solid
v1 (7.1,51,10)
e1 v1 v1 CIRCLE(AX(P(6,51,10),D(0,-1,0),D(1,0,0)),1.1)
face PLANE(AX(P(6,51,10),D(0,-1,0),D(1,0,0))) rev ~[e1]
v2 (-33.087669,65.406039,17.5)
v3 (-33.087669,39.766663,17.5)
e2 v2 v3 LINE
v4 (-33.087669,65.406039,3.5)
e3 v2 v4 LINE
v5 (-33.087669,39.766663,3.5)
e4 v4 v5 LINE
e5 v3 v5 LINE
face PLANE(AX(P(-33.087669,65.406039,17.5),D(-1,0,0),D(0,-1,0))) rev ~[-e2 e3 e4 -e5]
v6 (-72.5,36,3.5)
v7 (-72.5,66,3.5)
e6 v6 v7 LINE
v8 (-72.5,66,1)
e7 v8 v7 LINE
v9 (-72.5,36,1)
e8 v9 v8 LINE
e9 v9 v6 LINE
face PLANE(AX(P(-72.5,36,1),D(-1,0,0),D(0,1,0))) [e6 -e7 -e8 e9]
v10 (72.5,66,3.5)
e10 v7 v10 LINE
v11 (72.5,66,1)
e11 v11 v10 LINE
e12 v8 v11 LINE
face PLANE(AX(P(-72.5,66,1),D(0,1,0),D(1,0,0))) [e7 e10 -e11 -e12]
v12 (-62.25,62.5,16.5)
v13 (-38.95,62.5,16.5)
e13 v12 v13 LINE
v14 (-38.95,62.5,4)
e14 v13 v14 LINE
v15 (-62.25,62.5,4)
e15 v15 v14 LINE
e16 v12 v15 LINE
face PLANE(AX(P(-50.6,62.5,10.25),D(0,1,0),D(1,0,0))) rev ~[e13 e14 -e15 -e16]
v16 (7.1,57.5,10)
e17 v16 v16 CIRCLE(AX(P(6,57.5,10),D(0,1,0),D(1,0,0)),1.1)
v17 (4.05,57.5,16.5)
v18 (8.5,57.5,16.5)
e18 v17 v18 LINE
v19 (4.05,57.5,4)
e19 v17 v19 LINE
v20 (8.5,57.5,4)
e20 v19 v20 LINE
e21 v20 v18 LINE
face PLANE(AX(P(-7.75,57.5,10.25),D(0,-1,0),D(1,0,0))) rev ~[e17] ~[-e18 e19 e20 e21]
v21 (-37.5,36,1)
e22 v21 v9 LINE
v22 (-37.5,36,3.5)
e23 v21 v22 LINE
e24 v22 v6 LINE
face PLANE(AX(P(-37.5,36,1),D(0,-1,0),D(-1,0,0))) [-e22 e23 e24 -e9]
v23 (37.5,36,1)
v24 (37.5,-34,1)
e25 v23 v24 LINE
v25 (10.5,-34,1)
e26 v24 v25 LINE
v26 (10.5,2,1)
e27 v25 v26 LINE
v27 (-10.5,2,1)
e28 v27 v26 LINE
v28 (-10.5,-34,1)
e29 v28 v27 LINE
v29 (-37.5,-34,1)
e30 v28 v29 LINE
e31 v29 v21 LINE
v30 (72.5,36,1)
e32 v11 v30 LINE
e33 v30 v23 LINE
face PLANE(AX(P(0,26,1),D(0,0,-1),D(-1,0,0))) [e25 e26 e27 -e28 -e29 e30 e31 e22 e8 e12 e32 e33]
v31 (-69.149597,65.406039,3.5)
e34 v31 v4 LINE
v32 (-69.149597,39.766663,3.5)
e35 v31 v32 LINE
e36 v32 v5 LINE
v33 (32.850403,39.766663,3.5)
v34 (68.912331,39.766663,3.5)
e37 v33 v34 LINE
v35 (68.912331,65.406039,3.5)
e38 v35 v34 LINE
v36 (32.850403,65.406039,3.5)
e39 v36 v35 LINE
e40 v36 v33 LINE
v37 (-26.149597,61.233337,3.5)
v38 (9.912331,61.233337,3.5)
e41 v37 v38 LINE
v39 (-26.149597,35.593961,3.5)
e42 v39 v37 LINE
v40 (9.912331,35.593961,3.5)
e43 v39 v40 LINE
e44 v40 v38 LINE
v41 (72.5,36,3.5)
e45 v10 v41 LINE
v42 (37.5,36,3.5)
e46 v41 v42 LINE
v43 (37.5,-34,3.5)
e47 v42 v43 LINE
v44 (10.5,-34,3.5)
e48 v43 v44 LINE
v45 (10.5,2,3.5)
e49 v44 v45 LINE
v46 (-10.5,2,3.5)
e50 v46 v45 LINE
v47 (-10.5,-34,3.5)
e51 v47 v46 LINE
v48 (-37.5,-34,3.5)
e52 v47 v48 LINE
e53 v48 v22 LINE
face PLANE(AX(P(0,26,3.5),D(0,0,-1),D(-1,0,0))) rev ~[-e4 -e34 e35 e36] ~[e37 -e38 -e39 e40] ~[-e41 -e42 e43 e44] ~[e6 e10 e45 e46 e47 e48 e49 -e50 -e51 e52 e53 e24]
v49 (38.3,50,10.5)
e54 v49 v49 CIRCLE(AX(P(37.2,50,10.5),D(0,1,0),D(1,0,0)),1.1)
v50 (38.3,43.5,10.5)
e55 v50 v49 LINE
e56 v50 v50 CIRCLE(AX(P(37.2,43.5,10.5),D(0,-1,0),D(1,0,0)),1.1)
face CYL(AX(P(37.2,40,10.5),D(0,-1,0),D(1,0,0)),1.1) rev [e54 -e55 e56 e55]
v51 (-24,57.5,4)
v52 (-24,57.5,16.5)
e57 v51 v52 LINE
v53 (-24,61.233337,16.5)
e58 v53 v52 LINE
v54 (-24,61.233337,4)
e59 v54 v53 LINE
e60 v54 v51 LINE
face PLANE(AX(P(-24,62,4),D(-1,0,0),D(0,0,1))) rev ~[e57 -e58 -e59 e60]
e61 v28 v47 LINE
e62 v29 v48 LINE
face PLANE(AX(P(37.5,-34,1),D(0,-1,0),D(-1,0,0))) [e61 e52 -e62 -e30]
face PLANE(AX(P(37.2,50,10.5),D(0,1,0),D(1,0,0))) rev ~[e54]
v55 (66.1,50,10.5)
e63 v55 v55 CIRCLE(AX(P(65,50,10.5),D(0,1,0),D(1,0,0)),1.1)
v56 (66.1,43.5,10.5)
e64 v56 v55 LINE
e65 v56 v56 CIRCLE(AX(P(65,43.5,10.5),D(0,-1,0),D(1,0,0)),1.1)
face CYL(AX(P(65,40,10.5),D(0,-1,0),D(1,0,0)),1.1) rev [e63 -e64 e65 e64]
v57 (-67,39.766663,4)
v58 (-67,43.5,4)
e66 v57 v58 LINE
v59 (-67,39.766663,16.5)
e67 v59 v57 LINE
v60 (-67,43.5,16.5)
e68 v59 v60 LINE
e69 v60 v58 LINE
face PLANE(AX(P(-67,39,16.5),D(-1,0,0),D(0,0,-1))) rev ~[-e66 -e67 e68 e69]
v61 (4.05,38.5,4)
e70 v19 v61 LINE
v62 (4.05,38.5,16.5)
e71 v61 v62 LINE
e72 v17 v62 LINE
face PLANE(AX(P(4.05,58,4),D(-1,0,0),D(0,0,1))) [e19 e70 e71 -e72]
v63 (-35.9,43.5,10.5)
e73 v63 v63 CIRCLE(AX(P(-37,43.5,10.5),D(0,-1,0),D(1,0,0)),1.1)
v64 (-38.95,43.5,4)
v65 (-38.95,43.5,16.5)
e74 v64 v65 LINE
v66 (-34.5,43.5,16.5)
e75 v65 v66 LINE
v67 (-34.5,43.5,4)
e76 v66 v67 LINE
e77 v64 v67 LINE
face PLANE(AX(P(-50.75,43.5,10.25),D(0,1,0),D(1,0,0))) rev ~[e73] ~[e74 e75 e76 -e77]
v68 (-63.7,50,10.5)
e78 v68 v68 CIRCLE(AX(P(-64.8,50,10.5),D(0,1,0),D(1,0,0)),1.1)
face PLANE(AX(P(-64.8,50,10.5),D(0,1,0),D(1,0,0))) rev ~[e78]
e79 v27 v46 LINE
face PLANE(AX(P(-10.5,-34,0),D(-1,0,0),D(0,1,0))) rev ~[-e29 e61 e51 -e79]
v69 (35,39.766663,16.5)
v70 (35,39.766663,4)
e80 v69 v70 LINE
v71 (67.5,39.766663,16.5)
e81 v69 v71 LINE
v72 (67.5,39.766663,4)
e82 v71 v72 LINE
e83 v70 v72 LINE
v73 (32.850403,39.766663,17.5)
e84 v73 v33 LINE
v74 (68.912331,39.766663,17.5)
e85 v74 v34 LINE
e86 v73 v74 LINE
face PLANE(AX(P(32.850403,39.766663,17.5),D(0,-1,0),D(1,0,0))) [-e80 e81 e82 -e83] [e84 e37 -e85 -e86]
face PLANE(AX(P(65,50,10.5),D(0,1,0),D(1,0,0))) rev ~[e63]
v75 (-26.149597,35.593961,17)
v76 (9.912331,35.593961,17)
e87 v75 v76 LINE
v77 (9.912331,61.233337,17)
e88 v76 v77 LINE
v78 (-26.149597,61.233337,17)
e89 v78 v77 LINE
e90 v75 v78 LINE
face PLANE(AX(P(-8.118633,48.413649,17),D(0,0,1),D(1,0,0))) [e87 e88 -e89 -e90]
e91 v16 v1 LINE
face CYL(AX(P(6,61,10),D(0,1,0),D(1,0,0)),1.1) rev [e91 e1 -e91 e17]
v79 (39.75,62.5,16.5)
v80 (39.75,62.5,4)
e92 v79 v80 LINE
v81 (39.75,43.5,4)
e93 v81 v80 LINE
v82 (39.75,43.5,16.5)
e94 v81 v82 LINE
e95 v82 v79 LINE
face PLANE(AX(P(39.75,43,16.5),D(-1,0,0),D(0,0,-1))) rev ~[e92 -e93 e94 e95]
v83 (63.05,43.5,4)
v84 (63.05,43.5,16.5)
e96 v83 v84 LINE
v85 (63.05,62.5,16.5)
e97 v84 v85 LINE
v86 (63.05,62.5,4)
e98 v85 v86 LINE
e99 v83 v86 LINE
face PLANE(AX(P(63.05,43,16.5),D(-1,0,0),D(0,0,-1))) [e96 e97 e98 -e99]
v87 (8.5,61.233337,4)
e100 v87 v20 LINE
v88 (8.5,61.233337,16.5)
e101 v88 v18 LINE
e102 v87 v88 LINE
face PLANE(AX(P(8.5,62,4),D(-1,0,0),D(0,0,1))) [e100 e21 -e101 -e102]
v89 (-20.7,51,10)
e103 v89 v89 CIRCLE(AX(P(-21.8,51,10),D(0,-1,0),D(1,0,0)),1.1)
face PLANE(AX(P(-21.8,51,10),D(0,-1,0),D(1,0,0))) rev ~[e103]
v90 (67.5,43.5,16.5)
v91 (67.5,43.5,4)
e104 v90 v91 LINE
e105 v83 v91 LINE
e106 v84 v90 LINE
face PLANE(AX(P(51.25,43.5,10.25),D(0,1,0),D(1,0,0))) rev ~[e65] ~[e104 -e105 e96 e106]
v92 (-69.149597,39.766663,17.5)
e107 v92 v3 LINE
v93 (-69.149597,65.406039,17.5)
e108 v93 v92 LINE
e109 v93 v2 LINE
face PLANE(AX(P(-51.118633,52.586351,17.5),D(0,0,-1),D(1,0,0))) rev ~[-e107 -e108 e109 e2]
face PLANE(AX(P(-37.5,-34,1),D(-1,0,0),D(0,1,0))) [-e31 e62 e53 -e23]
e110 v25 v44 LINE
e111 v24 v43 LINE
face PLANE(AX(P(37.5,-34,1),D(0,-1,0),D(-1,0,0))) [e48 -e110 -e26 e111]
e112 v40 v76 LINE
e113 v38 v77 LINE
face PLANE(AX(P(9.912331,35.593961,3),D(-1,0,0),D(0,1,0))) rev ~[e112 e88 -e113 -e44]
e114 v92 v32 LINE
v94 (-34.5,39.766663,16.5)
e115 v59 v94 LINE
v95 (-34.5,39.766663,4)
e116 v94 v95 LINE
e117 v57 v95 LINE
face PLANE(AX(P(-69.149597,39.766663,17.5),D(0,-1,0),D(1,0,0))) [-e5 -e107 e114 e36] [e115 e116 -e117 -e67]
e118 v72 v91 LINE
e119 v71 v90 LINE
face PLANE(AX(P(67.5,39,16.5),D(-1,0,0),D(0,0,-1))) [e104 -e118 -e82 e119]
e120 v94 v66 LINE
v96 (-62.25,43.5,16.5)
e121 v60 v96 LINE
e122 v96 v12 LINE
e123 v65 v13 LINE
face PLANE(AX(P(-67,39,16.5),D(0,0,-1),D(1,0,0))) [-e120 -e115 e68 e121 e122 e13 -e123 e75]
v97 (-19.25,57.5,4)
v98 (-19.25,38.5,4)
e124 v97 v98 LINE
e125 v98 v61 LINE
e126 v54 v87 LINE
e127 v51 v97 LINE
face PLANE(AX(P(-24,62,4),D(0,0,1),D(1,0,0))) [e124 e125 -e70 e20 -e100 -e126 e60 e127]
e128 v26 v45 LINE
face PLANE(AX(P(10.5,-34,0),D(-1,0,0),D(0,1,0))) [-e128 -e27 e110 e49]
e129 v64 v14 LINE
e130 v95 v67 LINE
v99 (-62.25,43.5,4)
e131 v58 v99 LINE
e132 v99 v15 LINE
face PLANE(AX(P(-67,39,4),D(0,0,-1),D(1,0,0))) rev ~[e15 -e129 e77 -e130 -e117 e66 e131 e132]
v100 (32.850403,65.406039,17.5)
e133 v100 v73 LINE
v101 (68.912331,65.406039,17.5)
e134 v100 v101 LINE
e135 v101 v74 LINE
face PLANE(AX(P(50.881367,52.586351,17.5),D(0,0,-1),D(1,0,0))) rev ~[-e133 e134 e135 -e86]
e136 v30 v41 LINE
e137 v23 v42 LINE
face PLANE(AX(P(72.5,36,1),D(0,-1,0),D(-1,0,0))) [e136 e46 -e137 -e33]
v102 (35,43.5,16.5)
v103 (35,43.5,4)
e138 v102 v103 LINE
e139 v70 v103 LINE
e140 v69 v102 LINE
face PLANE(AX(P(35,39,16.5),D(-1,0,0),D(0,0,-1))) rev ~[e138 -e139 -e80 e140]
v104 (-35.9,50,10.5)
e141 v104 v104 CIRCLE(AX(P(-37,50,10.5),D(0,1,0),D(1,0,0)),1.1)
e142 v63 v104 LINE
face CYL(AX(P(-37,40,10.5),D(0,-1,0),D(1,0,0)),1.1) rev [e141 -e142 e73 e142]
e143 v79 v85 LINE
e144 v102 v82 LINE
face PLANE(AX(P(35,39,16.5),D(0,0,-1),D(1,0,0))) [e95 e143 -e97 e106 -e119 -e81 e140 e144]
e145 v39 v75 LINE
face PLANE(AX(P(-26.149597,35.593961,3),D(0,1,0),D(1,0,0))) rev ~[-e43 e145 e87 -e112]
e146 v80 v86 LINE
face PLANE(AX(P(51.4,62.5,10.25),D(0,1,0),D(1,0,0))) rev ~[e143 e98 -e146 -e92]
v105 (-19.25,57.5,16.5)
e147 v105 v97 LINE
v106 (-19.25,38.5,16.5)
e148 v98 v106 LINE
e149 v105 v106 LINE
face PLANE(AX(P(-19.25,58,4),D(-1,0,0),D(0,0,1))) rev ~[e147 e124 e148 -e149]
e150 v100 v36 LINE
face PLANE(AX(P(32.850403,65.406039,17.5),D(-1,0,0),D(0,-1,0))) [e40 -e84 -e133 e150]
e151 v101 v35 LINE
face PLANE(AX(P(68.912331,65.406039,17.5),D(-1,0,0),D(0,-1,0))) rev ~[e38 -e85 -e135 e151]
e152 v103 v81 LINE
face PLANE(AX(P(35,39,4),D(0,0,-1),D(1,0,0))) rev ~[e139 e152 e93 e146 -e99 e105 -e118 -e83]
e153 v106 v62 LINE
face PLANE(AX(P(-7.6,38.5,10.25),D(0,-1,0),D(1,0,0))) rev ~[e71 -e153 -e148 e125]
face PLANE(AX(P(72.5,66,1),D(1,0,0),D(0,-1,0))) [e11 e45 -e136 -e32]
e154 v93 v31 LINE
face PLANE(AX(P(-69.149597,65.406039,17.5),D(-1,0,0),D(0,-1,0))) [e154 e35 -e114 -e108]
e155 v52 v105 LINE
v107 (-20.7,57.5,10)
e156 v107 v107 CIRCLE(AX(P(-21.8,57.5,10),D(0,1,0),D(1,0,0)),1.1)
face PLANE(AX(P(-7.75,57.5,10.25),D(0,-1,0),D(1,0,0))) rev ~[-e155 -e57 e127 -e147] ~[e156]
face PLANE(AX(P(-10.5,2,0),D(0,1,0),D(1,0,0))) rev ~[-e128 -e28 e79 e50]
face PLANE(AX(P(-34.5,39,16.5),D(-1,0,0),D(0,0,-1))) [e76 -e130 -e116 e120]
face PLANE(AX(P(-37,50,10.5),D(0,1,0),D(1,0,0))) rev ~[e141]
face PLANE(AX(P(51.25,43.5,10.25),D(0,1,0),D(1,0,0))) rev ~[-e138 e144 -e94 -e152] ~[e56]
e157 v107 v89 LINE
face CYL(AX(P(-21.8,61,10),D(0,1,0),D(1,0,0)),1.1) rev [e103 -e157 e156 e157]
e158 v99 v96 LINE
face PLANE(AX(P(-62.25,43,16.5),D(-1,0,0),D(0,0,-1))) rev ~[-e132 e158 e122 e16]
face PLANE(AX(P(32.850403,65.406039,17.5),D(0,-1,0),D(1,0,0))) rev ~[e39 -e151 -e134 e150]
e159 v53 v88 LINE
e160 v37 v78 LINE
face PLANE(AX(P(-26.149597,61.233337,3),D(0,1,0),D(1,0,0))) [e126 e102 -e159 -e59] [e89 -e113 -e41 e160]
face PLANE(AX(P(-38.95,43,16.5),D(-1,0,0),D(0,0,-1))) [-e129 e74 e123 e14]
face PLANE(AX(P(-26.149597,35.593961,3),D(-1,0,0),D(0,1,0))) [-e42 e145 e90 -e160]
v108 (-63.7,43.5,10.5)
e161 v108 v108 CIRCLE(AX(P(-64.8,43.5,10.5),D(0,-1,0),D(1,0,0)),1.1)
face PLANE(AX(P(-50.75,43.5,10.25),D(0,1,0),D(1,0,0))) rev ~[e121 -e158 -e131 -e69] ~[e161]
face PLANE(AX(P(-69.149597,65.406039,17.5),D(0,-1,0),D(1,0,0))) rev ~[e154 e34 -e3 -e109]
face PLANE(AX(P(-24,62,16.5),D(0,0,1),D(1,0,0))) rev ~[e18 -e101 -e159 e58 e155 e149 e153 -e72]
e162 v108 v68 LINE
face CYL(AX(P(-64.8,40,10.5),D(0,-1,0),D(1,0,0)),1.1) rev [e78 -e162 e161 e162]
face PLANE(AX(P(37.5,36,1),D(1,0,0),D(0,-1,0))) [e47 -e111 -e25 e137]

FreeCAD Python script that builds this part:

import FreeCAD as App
import Part
import Sketcher
from FreeCAD import Vector
Q = App.Units.Quantity

doc = App.newDocument("Part")
params = doc.addObject("Spreadsheet::Sheet", "Params")
for row, (alias, value) in enumerate([
    ("sketch1_width", "21 mm"),
    ("sketch1_height", "36 mm"),
    ("pad1_length", "10 mm"),
    ("sketch2_diameter", "2.2 mm"),
    ("pad2_length", "10 mm"),
    ("sketch3_diameter", "2.2 mm"),
    ("pad3_length", "10 mm"),
    ("sketch4_width", "23.3 mm"),
    ("sketch4_height", "12.5 mm"),
    ("pad4_length", "19.5 mm"),
    ("sketch5_width", "32.5 mm"),
    ("sketch5_height", "12.5 mm"),
    ("pad5_length", "4.5 mm"),
    ("pad6_length", "14 mm"),
    ("sketch7_diameter", "2.2 mm"),
    ("pad7_length", "10 mm"),
    ("sketch8_diameter", "2.2 mm"),
    ("pad8_length", "10 mm"),
    ("sketch9_width", "23.3 mm"),
    ("sketch9_height", "12.5 mm"),
    ("pad9_length", "19.5 mm"),
    ("sketch10_width", "32.5 mm"),
    ("sketch10_height", "12.5 mm"),
    ("pad10_length", "4.5 mm"),
    ("pad11_length", "14 mm"),
    ("sketch12_diameter", "2.2 mm"),
    ("pad12_length", "10 mm"),
    ("sketch13_diameter", "2.2 mm"),
    ("pad13_length", "10 mm"),
    ("sketch14_width", "23.3 mm"),
    ("sketch14_height", "12.5 mm"),
    ("pad14_length", "19.5 mm"),
    ("sketch15_width", "32.5 mm"),
    ("sketch15_height", "12.5 mm"),
    ("pad15_length", "4.5 mm"),
    ("pad16_length", "14 mm"),
    ("sketch17_width", "35 mm"),
    ("sketch17_width2", "75 mm"),
    ("sketch17_height", "30 mm"),
    ("sketch17_height2", "70 mm"),
    ("pad17_length", "2.5 mm"),
], start=1):
    params.set(f"A{row}", alias)
    params.set(f"B{row}", "=" + value)
    params.setAlias(f"B{row}", alias)

body = doc.addObject("PartDesign::Body", "Body")

# Sketch on XY plane
sketch1 = body.newObject("Sketcher::SketchObject", "Sketch")
sketch1.AttachmentSupport = (doc.getObject("XY_Plane"), [""])
sketch1.MapMode = "FlatFace"
sketch1.addGeometry([
    Part.LineSegment(Vector(-10, 2, 0), Vector(-10, -34, 0)),
    Part.LineSegment(Vector(-10, -34, 0), Vector(10, -34, 0)),
    Part.LineSegment(Vector(10, -34, 0), Vector(10, 2, 0)),
    Part.LineSegment(Vector(10, 2, 0), Vector(-10, 2, 0)),
], False)
sketch1.addConstraint([
    Sketcher.Constraint("Coincident", 0, 2, 1, 1),
    Sketcher.Constraint("Coincident", 1, 2, 2, 1),
    Sketcher.Constraint("Coincident", 2, 2, 3, 1),
    Sketcher.Constraint("Coincident", 3, 2, 0, 1),
    Sketcher.Constraint("Vertical", 0),
    Sketcher.Constraint("Horizontal", 1),
    Sketcher.Constraint("Vertical", 2),
    Sketcher.Constraint("Horizontal", 3),
    Sketcher.Constraint("DistanceX", 1, 1, 1, 2, Q("21 mm")),
    Sketcher.Constraint("DistanceY", 0, 2, 0, 1, Q("36 mm")),
    Sketcher.Constraint("DistanceY", 0, 2, -1, 1, Q("34 mm")),
    Sketcher.Constraint("DistanceX", 0, 2, -1, 1, Q("10.5 mm")),
])
sketch1.setExpression("Constraints[8]", "Params.sketch1_width")
sketch1.setExpression("Constraints[9]", "Params.sketch1_height")
pad1 = body.newObject("PartDesign::Pad", "Pad")
pad1.Profile = sketch1
pad1.setExpression("Length", "Params.pad1_length")
body2 = doc.addObject("PartDesign::Body", "Body001")

# Sketch on XZ plane
sketch2 = body2.newObject("Sketcher::SketchObject", "Sketch001")
sketch2.AttachmentSupport = (doc.getObject("XZ_Plane001"), [""])
sketch2.MapMode = "FlatFace"
sketch2.AttachmentOffset = App.Placement(Vector(0, 0, -22), App.Rotation())
sketch2.addGeometry(Part.Circle(Vector(30, 6, 0), Vector(0, 0, 1), 1.1), False)
sketch2.addConstraint([
    Sketcher.Constraint("Diameter", 0, Q("2.2 mm")),
    Sketcher.Constraint("DistanceX", -1, 1, 0, 3, Q("30 mm")),
    Sketcher.Constraint("DistanceY", -1, 1, 0, 3, Q("6 mm")),
])
sketch2.setExpression("Constraints[0]", "Params.sketch2_diameter")
pad2 = body2.newObject("PartDesign::Pad", "Pad001")
pad2.Profile = sketch2
pad2.setExpression("Length", "Params.pad2_length")
body3 = doc.addObject("PartDesign::Body", "Body002")
body3.AllowCompound = True

# Sketch on XZ plane
sketch3 = body3.newObject("Sketcher::SketchObject", "Sketch002")
sketch3.AttachmentSupport = (doc.getObject("XZ_Plane002"), [""])
sketch3.MapMode = "FlatFace"
sketch3.AttachmentOffset = App.Placement(Vector(0, 0, -22), App.Rotation())
sketch3.addGeometry(Part.Circle(Vector(2.2, 6, 0), Vector(0, 0, 1), 1.1), False)
sketch3.addConstraint([
    Sketcher.Constraint("Diameter", 0, Q("2.2 mm")),
    Sketcher.Constraint("DistanceY", -1, 1, 0, 3, Q("6 mm")),
    Sketcher.Constraint("DistanceX", -1, 1, 0, 3, Q("2.2 mm")),
])
sketch3.setExpression("Constraints[0]", "Params.sketch3_diameter")
pad3 = body3.newObject("PartDesign::Pad", "Pad002")
pad3.Profile = sketch3
pad3.setExpression("Length", "Params.pad3_length")
doc.recompute()

boolean = body3.newObject("PartDesign::Boolean", "Boolean")
boolean.Type = "Fuse"
boolean.addObjects([body2])
body4 = doc.addObject("PartDesign::Body", "Body003")

# Sketch on XZ plane
sketch4 = body4.newObject("Sketcher::SketchObject", "Sketch003")
sketch4.AttachmentSupport = (doc.getObject("XZ_Plane003"), [""])
sketch4.MapMode = "FlatFace"
sketch4.addGeometry([
    Part.LineSegment(Vector(5, 12, 0), Vector(5, 0, 0)),
    Part.LineSegment(Vector(5, 0, 0), Vector(28, 0, 0)),
    Part.LineSegment(Vector(28, 0, 0), Vector(28, 12, 0)),
    Part.LineSegment(Vector(28, 12, 0), Vector(5, 12, 0)),
], False)
sketch4.addConstraint([
    Sketcher.Constraint("Coincident", 0, 2, 1, 1),
    Sketcher.Constraint("Coincident", 1, 2, 2, 1),
    Sketcher.Constraint("Coincident", 2, 2, 3, 1),
    Sketcher.Constraint("Coincident", 3, 2, 0, 1),
    Sketcher.Constraint("Vertical", 0),
    Sketcher.Constraint("Horizontal", 1),
    Sketcher.Constraint("Vertical", 2),
    Sketcher.Constraint("Horizontal", 3),
    Sketcher.Constraint("PointOnObject", 0, 2, -1),
    Sketcher.Constraint("DistanceX", 1, 1, 1, 2, Q("23.3 mm")),
    Sketcher.Constraint("DistanceY", 0, 2, 0, 1, Q("12.5 mm")),
    Sketcher.Constraint("DistanceX", -1, 1, 0, 2, Q("4.75 mm")),
])
sketch4.setExpression("Constraints[9]", "Params.sketch4_width")
sketch4.setExpression("Constraints[10]", "Params.sketch4_height")
pad4 = body4.newObject("PartDesign::Pad", "Pad003")
pad4.Profile = sketch4
pad4.setExpression("Length", "Params.pad4_length")
body5 = doc.addObject("PartDesign::Body", "Body004")
doc.recompute()

body4.Placement = App.Placement(Vector(0, 19, 0), App.Rotation(Vector(0, 0, 1), 0))
boolean2 = body5.newObject("PartDesign::Boolean", "Boolean001")
boolean2.Type = "Fuse"
boolean2.addObjects([body4])
body6 = doc.addObject("PartDesign::Body", "Body005")

# Sketch on XZ plane
sketch5 = body6.newObject("Sketcher::SketchObject", "Sketch004")
sketch5.AttachmentSupport = (doc.getObject("XZ_Plane005"), [""])
sketch5.MapMode = "FlatFace"
sketch5.addGeometry([
    Part.LineSegment(Vector(0, 12, 0), Vector(0, 0, 0)),
    Part.LineSegment(Vector(0, 0, 0), Vector(32, 0, 0)),
    Part.LineSegment(Vector(32, 0, 0), Vector(32, 12, 0)),
    Part.LineSegment(Vector(32, 12, 0), Vector(0, 12, 0)),
], False)
sketch5.addConstraint([
    Sketcher.Constraint("Coincident", 0, 2, 1, 1),
    Sketcher.Constraint("Coincident", 1, 2, 2, 1),
    Sketcher.Constraint("Coincident", 2, 2, 3, 1),
    Sketcher.Constraint("Coincident", 3, 2, 0, 1),
    Sketcher.Constraint("Vertical", 0),
    Sketcher.Constraint("Horizontal", 1),
    Sketcher.Constraint("Vertical", 2),
    Sketcher.Constraint("Horizontal", 3),
    Sketcher.Constraint("Coincident", 0, 2, -1, 1),
    Sketcher.Constraint("DistanceX", 1, 1, 1, 2, Q("32.5 mm")),
    Sketcher.Constraint("DistanceY", 0, 2, 0, 1, Q("12.5 mm")),
])
sketch5.setExpression("Constraints[9]", "Params.sketch5_width")
sketch5.setExpression("Constraints[10]", "Params.sketch5_height")
pad5 = body6.newObject("PartDesign::Pad", "Pad004")
pad5.Profile = sketch5
pad5.setExpression("Length", "Params.pad5_length")
body7 = doc.addObject("PartDesign::Body", "Body006")
doc.recompute()

body6.Placement = App.Placement(Vector(0, 23, 0), App.Rotation(Vector(0, 0, 1), 0))
boolean3 = body7.newObject("PartDesign::Boolean", "Boolean002")
boolean3.Type = "Fuse"
boolean3.addObjects([body6])
body8 = doc.addObject("PartDesign::Body", "Body007")

# Sketch on XY plane
sketch6 = body8.newObject("Sketcher::SketchObject", "Sketch005")
sketch6.AttachmentSupport = (doc.getObject("XY_Plane007"), [""])
sketch6.MapMode = "FlatFace"
sketch6.addGeometry([
    Part.LineSegment(Vector(-2, 22, 0), Vector(-2, -3, 0)),
    Part.LineSegment(Vector(-2, -3, 0), Vector(34, -3, 0)),
    Part.LineSegment(Vector(34, -3, 0), Vector(34, 22, 0)),
    Part.LineSegment(Vector(34, 22, 0), Vector(-2, 22, 0)),
], False)
sketch6.addConstraint([
    Sketcher.Constraint("Coincident", 0, 2, 1, 1),
    Sketcher.Constraint("Coincident", 1, 2, 2, 1),
    Sketcher.Constraint("Coincident", 2, 2, 3, 1),
    Sketcher.Constraint("Coincident", 3, 2, 0, 1),
    Sketcher.Constraint("Vertical", 0),
    Sketcher.Constraint("Horizontal", 1),
    Sketcher.Constraint("Vertical", 2),
    Sketcher.Constraint("Horizontal", 3),
    Sketcher.Constraint("DistanceX", 1, 1, 1, 2, Q("36.061928 mm")),
    Sketcher.Constraint("DistanceY", 0, 2, 0, 1, Q("25.639376 mm")),
    Sketcher.Constraint("DistanceY", 0, 2, -1, 1, Q("3.406039 mm")),
    Sketcher.Constraint("DistanceX", -1, 1, 1, 2, Q("33.912331 mm")),
])
pad6 = body8.newObject("PartDesign::Pad", "Pad005")
pad6.Profile = sketch6
pad6.setExpression("Length", "Params.pad6_length")
body9 = doc.addObject("PartDesign::Body", "Body008")
doc.recompute()

body8.Placement = App.Placement(Vector(0, 0, -1), App.Rotation(Vector(0, 0, 1), 0))
boolean4 = body9.newObject("PartDesign::Boolean", "Boolean003")
boolean4.Type = "Fuse"
boolean4.addObjects([body8])
doc.recompute()

boolean5 = body9.newObject("PartDesign::Boolean", "Boolean004")
boolean5.Type = "Cut"
boolean5.addObjects([body7])
doc.recompute()

boolean6 = body9.newObject("PartDesign::Boolean", "Boolean005")
boolean6.Type = "Cut"
boolean6.addObjects([body5])
doc.recompute()

boolean7 = body9.newObject("PartDesign::Boolean", "Boolean006")
boolean7.Type = "Cut"
boolean7.addObjects([body3])
body10 = doc.addObject("PartDesign::Body", "Body009")
doc.recompute()

body9.Placement = App.Placement(Vector(-24, 39, 4), App.Rotation(Vector(0, 0, 1), 0))
boolean8 = body10.newObject("PartDesign::Boolean", "Boolean007")
boolean8.Type = "Fuse"
boolean8.addObjects([body9])
body11 = doc.addObject("PartDesign::Body", "Body010")

# Sketch on XZ plane
sketch7 = body11.newObject("Sketcher::SketchObject", "Sketch006")
sketch7.AttachmentSupport = (doc.getObject("XZ_Plane010"), [""])
sketch7.MapMode = "FlatFace"
sketch7.AttachmentOffset = App.Placement(Vector(0, 0, -22), App.Rotation())
sketch7.addGeometry(Part.Circle(Vector(30, 6, 0), Vector(0, 0, 1), 1.1), False)
sketch7.addConstraint([
    Sketcher.Constraint("Diameter", 0, Q("2.2 mm")),
    Sketcher.Constraint("DistanceX", -1, 1, 0, 3, Q("30 mm")),
    Sketcher.Constraint("DistanceY", -1, 1, 0, 3, Q("6 mm")),
])
sketch7.setExpression("Constraints[0]", "Params.sketch7_diameter")
pad7 = body11.newObject("PartDesign::Pad", "Pad006")
pad7.Profile = sketch7
pad7.setExpression("Length", "Params.pad7_length")
body12 = doc.addObject("PartDesign::Body", "Body011")
body12.AllowCompound = True

# Sketch on XZ plane
sketch8 = body12.newObject("Sketcher::SketchObject", "Sketch007")
sketch8.AttachmentSupport = (doc.getObject("XZ_Plane011"), [""])
sketch8.MapMode = "FlatFace"
sketch8.AttachmentOffset = App.Placement(Vector(0, 0, -22), App.Rotation())
sketch8.addGeometry(Part.Circle(Vector(2.2, 6, 0), Vector(0, 0, 1), 1.1), False)
sketch8.addConstraint([
    Sketcher.Constraint("Diameter", 0, Q("2.2 mm")),
    Sketcher.Constraint("DistanceY", -1, 1, 0, 3, Q("6 mm")),
    Sketcher.Constraint("DistanceX", -1, 1, 0, 3, Q("2.2 mm")),
])
sketch8.setExpression("Constraints[0]", "Params.sketch8_diameter")
pad8 = body12.newObject("PartDesign::Pad", "Pad007")
pad8.Profile = sketch8
pad8.setExpression("Length", "Params.pad8_length")
doc.recompute()

boolean9 = body12.newObject("PartDesign::Boolean", "Boolean008")
boolean9.Type = "Fuse"
boolean9.addObjects([body11])
body13 = doc.addObject("PartDesign::Body", "Body012")

# Sketch on XZ plane
sketch9 = body13.newObject("Sketcher::SketchObject", "Sketch008")
sketch9.AttachmentSupport = (doc.getObject("XZ_Plane012"), [""])
sketch9.MapMode = "FlatFace"
sketch9.addGeometry([
    Part.LineSegment(Vector(5, 12, 0), Vector(5, 0, 0)),
    Part.LineSegment(Vector(5, 0, 0), Vector(28, 0, 0)),
    Part.LineSegment(Vector(28, 0, 0), Vector(28, 12, 0)),
    Part.LineSegment(Vector(28, 12, 0), Vector(5, 12, 0)),
], False)
sketch9.addConstraint([
    Sketcher.Constraint("Coincident", 0, 2, 1, 1),
    Sketcher.Constraint("Coincident", 1, 2, 2, 1),
    Sketcher.Constraint("Coincident", 2, 2, 3, 1),
    Sketcher.Constraint("Coincident", 3, 2, 0, 1),
    Sketcher.Constraint("Vertical", 0),
    Sketcher.Constraint("Horizontal", 1),
    Sketcher.Constraint("Vertical", 2),
    Sketcher.Constraint("Horizontal", 3),
    Sketcher.Constraint("PointOnObject", 0, 2, -1),
    Sketcher.Constraint("DistanceX", 1, 1, 1, 2, Q("23.3 mm")),
    Sketcher.Constraint("DistanceY", 0, 2, 0, 1, Q("12.5 mm")),
    Sketcher.Constraint("DistanceX", -1, 1, 0, 2, Q("4.75 mm")),
])
sketch9.setExpression("Constraints[9]", "Params.sketch9_width")
sketch9.setExpression("Constraints[10]", "Params.sketch9_height")
pad9 = body13.newObject("PartDesign::Pad", "Pad008")
pad9.Profile = sketch9
pad9.setExpression("Length", "Params.pad9_length")
body14 = doc.addObject("PartDesign::Body", "Body013")
doc.recompute()

body13.Placement = App.Placement(Vector(0, 19, 0), App.Rotation(Vector(0, 0, 1), 0))
boolean10 = body14.newObject("PartDesign::Boolean", "Boolean009")
boolean10.Type = "Fuse"
boolean10.addObjects([body13])
body15 = doc.addObject("PartDesign::Body", "Body014")

# Sketch on XZ plane
sketch10 = body15.newObject("Sketcher::SketchObject", "Sketch009")
sketch10.AttachmentSupport = (doc.getObject("XZ_Plane014"), [""])
sketch10.MapMode = "FlatFace"
sketch10.addGeometry([
    Part.LineSegment(Vector(0, 12, 0), Vector(0, 0, 0)),
    Part.LineSegment(Vector(0, 0, 0), Vector(32, 0, 0)),
    Part.LineSegment(Vector(32, 0, 0), Vector(32, 12, 0)),
    Part.LineSegment(Vector(32, 12, 0), Vector(0, 12, 0)),
], False)
sketch10.addConstraint([
    Sketcher.Constraint("Coincident", 0, 2, 1, 1),
    Sketcher.Constraint("Coincident", 1, 2, 2, 1),
    Sketcher.Constraint("Coincident", 2, 2, 3, 1),
    Sketcher.Constraint("Coincident", 3, 2, 0, 1),
    Sketcher.Constraint("Vertical", 0),
    Sketcher.Constraint("Horizontal", 1),
    Sketcher.Constraint("Vertical", 2),
    Sketcher.Constraint("Horizontal", 3),
    Sketcher.Constraint("Coincident", 0, 2, -1, 1),
    Sketcher.Constraint("DistanceX", 1, 1, 1, 2, Q("32.5 mm")),
    Sketcher.Constraint("DistanceY", 0, 2, 0, 1, Q("12.5 mm")),
])
sketch10.setExpression("Constraints[9]", "Params.sketch10_width")
sketch10.setExpression("Constraints[10]", "Params.sketch10_height")
pad10 = body15.newObject("PartDesign::Pad", "Pad009")
pad10.Profile = sketch10
pad10.setExpression("Length", "Params.pad10_length")
body16 = doc.addObject("PartDesign::Body", "Body015")
doc.recompute()

body15.Placement = App.Placement(Vector(0, 23, 0), App.Rotation(Vector(0, 0, 1), 0))
boolean11 = body16.newObject("PartDesign::Boolean", "Boolean010")
boolean11.Type = "Fuse"
boolean11.addObjects([body15])
body17 = doc.addObject("PartDesign::Body", "Body016")

# Sketch on XY plane
sketch11 = body17.newObject("Sketcher::SketchObject", "Sketch010")
sketch11.AttachmentSupport = (doc.getObject("XY_Plane016"), [""])
sketch11.MapMode = "FlatFace"
sketch11.addGeometry([
    Part.LineSegment(Vector(-2, 22, 0), Vector(-2, -3, 0)),
    Part.LineSegment(Vector(-2, -3, 0), Vector(34, -3, 0)),
    Part.LineSegment(Vector(34, -3, 0), Vector(34, 22, 0)),
    Part.LineSegment(Vector(34, 22, 0), Vector(-2, 22, 0)),
], False)
sketch11.addConstraint([
    Sketcher.Constraint("Coincident", 0, 2, 1, 1),
    Sketcher.Constraint("Coincident", 1, 2, 2, 1),
    Sketcher.Constraint("Coincident", 2, 2, 3, 1),
    Sketcher.Constraint("Coincident", 3, 2, 0, 1),
    Sketcher.Constraint("Vertical", 0),
    Sketcher.Constraint("Horizontal", 1),
    Sketcher.Constraint("Vertical", 2),
    Sketcher.Constraint("Horizontal", 3),
    Sketcher.Constraint("DistanceX", 1, 1, 1, 2, Q("36.061928 mm")),
    Sketcher.Constraint("DistanceY", 0, 2, 0, 1, Q("25.639376 mm")),
    Sketcher.Constraint("DistanceY", 0, 2, -1, 1, Q("3.406039 mm")),
    Sketcher.Constraint("DistanceX", -1, 1, 1, 2, Q("33.912331 mm")),
])
pad11 = body17.newObject("PartDesign::Pad", "Pad010")
pad11.Profile = sketch11
pad11.setExpression("Length", "Params.pad11_length")
body18 = doc.addObject("PartDesign::Body", "Body017")
doc.recompute()

body17.Placement = App.Placement(Vector(0, 0, -1), App.Rotation(Vector(0, 0, 1), 0))
boolean12 = body18.newObject("PartDesign::Boolean", "Boolean011")
boolean12.Type = "Fuse"
boolean12.addObjects([body17])
doc.recompute()

boolean13 = body18.newObject("PartDesign::Boolean", "Boolean012")
boolean13.Type = "Cut"
boolean13.addObjects([body16])
doc.recompute()

boolean14 = body18.newObject("PartDesign::Boolean", "Boolean013")
boolean14.Type = "Cut"
boolean14.addObjects([body14])
doc.recompute()

boolean15 = body18.newObject("PartDesign::Boolean", "Boolean014")
boolean15.Type = "Cut"
boolean15.addObjects([body12])
body19 = doc.addObject("PartDesign::Body", "Body018")
doc.recompute()

body18.Placement = App.Placement(Vector(-67, 62, 16.5), App.Rotation(Vector(1, 0, 0), 180))
boolean16 = body19.newObject("PartDesign::Boolean", "Boolean015")
boolean16.Type = "Fuse"
boolean16.addObjects([body18])
body20 = doc.addObject("PartDesign::Body", "Body019")

# Sketch on XZ plane
sketch12 = body20.newObject("Sketcher::SketchObject", "Sketch011")
sketch12.AttachmentSupport = (doc.getObject("XZ_Plane019"), [""])
sketch12.MapMode = "FlatFace"
sketch12.AttachmentOffset = App.Placement(Vector(0, 0, -22), App.Rotation())
sketch12.addGeometry(Part.Circle(Vector(30, 6, 0), Vector(0, 0, 1), 1.1), False)
sketch12.addConstraint([
    Sketcher.Constraint("Diameter", 0, Q("2.2 mm")),
    Sketcher.Constraint("DistanceX", -1, 1, 0, 3, Q("30 mm")),
    Sketcher.Constraint("DistanceY", -1, 1, 0, 3, Q("6 mm")),
])
sketch12.setExpression("Constraints[0]", "Params.sketch12_diameter")
pad12 = body20.newObject("PartDesign::Pad", "Pad011")
pad12.Profile = sketch12
pad12.setExpression("Length", "Params.pad12_length")
body21 = doc.addObject("PartDesign::Body", "Body020")
body21.AllowCompound = True

# Sketch on XZ plane
sketch13 = body21.newObject("Sketcher::SketchObject", "Sketch012")
sketch13.AttachmentSupport = (doc.getObject("XZ_Plane020"), [""])
sketch13.MapMode = "FlatFace"
sketch13.AttachmentOffset = App.Placement(Vector(0, 0, -22), App.Rotation())
sketch13.addGeometry(Part.Circle(Vector(2.2, 6, 0), Vector(0, 0, 1), 1.1), False)
sketch13.addConstraint([
    Sketcher.Constraint("Diameter", 0, Q("2.2 mm")),
    Sketcher.Constraint("DistanceY", -1, 1, 0, 3, Q("6 mm")),
    Sketcher.Constraint("DistanceX", -1, 1, 0, 3, Q("2.2 mm")),
])
sketch13.setExpression("Constraints[0]", "Params.sketch13_diameter")
pad13 = body21.newObject("PartDesign::Pad", "Pad012")
pad13.Profile = sketch13
pad13.setExpression("Length", "Params.pad13_length")
doc.recompute()

boolean17 = body21.newObject("PartDesign::Boolean", "Boolean016")
boolean17.Type = "Fuse"
boolean17.addObjects([body20])
body22 = doc.addObject("PartDesign::Body", "Body021")

# Sketch on XZ plane
sketch14 = body22.newObject("Sketcher::SketchObject", "Sketch013")
sketch14.AttachmentSupport = (doc.getObject("XZ_Plane021"), [""])
sketch14.MapMode = "FlatFace"
sketch14.addGeometry([
    Part.LineSegment(Vector(5, 12, 0), Vector(5, 0, 0)),
    Part.LineSegment(Vector(5, 0, 0), Vector(28, 0, 0)),
    Part.LineSegment(Vector(28, 0, 0), Vector(28, 12, 0)),
    Part.LineSegment(Vector(28, 12, 0), Vector(5, 12, 0)),
], False)
sketch14.addConstraint([
    Sketcher.Constraint("Coincident", 0, 2, 1, 1),
    Sketcher.Constraint("Coincident", 1, 2, 2, 1),
    Sketcher.Constraint("Coincident", 2, 2, 3, 1),
    Sketcher.Constraint("Coincident", 3, 2, 0, 1),
    Sketcher.Constraint("Vertical", 0),
    Sketcher.Constraint("Horizontal", 1),
    Sketcher.Constraint("Vertical", 2),
    Sketcher.Constraint("Horizontal", 3),
    Sketcher.Constraint("PointOnObject", 0, 2, -1),
    Sketcher.Constraint("DistanceX", 1, 1, 1, 2, Q("23.3 mm")),
    Sketcher.Constraint("DistanceY", 0, 2, 0, 1, Q("12.5 mm")),
    Sketcher.Constraint("DistanceX", -1, 1, 0, 2, Q("4.75 mm")),
])
sketch14.setExpression("Constraints[9]", "Params.sketch14_width")
sketch14.setExpression("Constraints[10]", "Params.sketch14_height")
pad14 = body22.newObject("PartDesign::Pad", "Pad013")
pad14.Profile = sketch14
pad14.setExpression("Length", "Params.pad14_length")
body23 = doc.addObject("PartDesign::Body", "Body022")
doc.recompute()

body22.Placement = App.Placement(Vector(0, 19, 0), App.Rotation(Vector(0, 0, 1), 0))
boolean18 = body23.newObject("PartDesign::Boolean", "Boolean017")
boolean18.Type = "Fuse"
boolean18.addObjects([body22])
body24 = doc.addObject("PartDesign::Body", "Body023")

# Sketch on XZ plane
sketch15 = body24.newObject("Sketcher::SketchObject", "Sketch014")
sketch15.AttachmentSupport = (doc.getObject("XZ_Plane023"), [""])
sketch15.MapMode = "FlatFace"
sketch15.addGeometry([
    Part.LineSegment(Vector(0, 12, 0), Vector(0, 0, 0)),
    Part.LineSegment(Vector(0, 0, 0), Vector(32, 0, 0)),
    Part.LineSegment(Vector(32, 0, 0), Vector(32, 12, 0)),
    Part.LineSegment(Vector(32, 12, 0), Vector(0, 12, 0)),
], False)
sketch15.addConstraint([
    Sketcher.Constraint("Coincident", 0, 2, 1, 1),
    Sketcher.Constraint("Coincident", 1, 2, 2, 1),
    Sketcher.Constraint("Coincident", 2, 2, 3, 1),
    Sketcher.Constraint("Coincident", 3, 2, 0, 1),
    Sketcher.Constraint("Vertical", 0),
    Sketcher.Constraint("Horizontal", 1),
    Sketcher.Constraint("Vertical", 2),
    Sketcher.Constraint("Horizontal", 3),
    Sketcher.Constraint("Coincident", 0, 2, -1, 1),
    Sketcher.Constraint("DistanceX", 1, 1, 1, 2, Q("32.5 mm")),
    Sketcher.Constraint("DistanceY", 0, 2, 0, 1, Q("12.5 mm")),
])
sketch15.setExpression("Constraints[9]", "Params.sketch15_width")
sketch15.setExpression("Constraints[10]", "Params.sketch15_height")
pad15 = body24.newObject("PartDesign::Pad", "Pad014")
pad15.Profile = sketch15
pad15.setExpression("Length", "Params.pad15_length")
body25 = doc.addObject("PartDesign::Body", "Body024")
doc.recompute()

body24.Placement = App.Placement(Vector(0, 23, 0), App.Rotation(Vector(0, 0, 1), 0))
boolean19 = body25.newObject("PartDesign::Boolean", "Boolean018")
boolean19.Type = "Fuse"
boolean19.addObjects([body24])
body26 = doc.addObject("PartDesign::Body", "Body025")

# Sketch on XY plane
sketch16 = body26.newObject("Sketcher::SketchObject", "Sketch015")
sketch16.AttachmentSupport = (doc.getObject("XY_Plane025"), [""])
sketch16.MapMode = "FlatFace"
sketch16.addGeometry([
    Part.LineSegment(Vector(-2, 22, 0), Vector(-2, -3, 0)),
    Part.LineSegment(Vector(-2, -3, 0), Vector(34, -3, 0)),
    Part.LineSegment(Vector(34, -3, 0), Vector(34, 22, 0)),
    Part.LineSegment(Vector(34, 22, 0), Vector(-2, 22, 0)),
], False)
sketch16.addConstraint([
    Sketcher.Constraint("Coincident", 0, 2, 1, 1),
    Sketcher.Constraint("Coincident", 1, 2, 2, 1),
    Sketcher.Constraint("Coincident", 2, 2, 3, 1),
    Sketcher.Constraint("Coincident", 3, 2, 0, 1),
    Sketcher.Constraint("Vertical", 0),
    Sketcher.Constraint("Horizontal", 1),
    Sketcher.Constraint("Vertical", 2),
    Sketcher.Constraint("Horizontal", 3),
    Sketcher.Constraint("DistanceX", 1, 1, 1, 2, Q("36.061928 mm")),
    Sketcher.Constraint("DistanceY", 0, 2, 0, 1, Q("25.639376 mm")),
    Sketcher.Constraint("DistanceY", 0, 2, -1, 1, Q("3.406039 mm")),
    Sketcher.Constraint("DistanceX", -1, 1, 1, 2, Q("33.912331 mm")),
])
pad16 = body26.newObject("PartDesign::Pad", "Pad015")
pad16.Profile = sketch16
pad16.setExpression("Length", "Params.pad16_length")
body27 = doc.addObject("PartDesign::Body", "Body026")
doc.recompute()

body26.Placement = App.Placement(Vector(0, 0, -1), App.Rotation(Vector(0, 0, 1), 0))
boolean20 = body27.newObject("PartDesign::Boolean", "Boolean019")
boolean20.Type = "Fuse"
boolean20.addObjects([body26])
doc.recompute()

boolean21 = body27.newObject("PartDesign::Boolean", "Boolean020")
boolean21.Type = "Cut"
boolean21.addObjects([body25])
doc.recompute()

boolean22 = body27.newObject("PartDesign::Boolean", "Boolean021")
boolean22.Type = "Cut"
boolean22.addObjects([body23])
doc.recompute()

boolean23 = body27.newObject("PartDesign::Boolean", "Boolean022")
boolean23.Type = "Cut"
boolean23.addObjects([body21])
body28 = doc.addObject("PartDesign::Body", "Body027")
doc.recompute()

body27.Placement = App.Placement(Vector(35, 62, 16.5), App.Rotation(Vector(1, 0, 0), 180))
boolean24 = body28.newObject("PartDesign::Boolean", "Boolean023")
boolean24.Type = "Fuse"
boolean24.addObjects([body27])
body29 = doc.addObject("PartDesign::Body", "Body028")

# Sketch on XY plane
sketch17 = body29.newObject("Sketcher::SketchObject", "Sketch016")
sketch17.AttachmentSupport = (doc.getObject("XY_Plane028"), [""])
sketch17.MapMode = "FlatFace"
sketch17.addGeometry([
    Part.LineSegment(Vector(-72, 66, 0), Vector(-72, 36, 0)),  # 0
    Part.LineSegment(Vector(-72, 36, 0), Vector(-38, 36, 0)),  # 1
    Part.LineSegment(Vector(-38, 36, 0), Vector(-38, -34, 0)),  # 2
    Part.LineSegment(Vector(-38, -34, 0), Vector(38, -34, 0)),  # 3
    Part.LineSegment(Vector(38, -34, 0), Vector(38, 36, 0)),  # 4
    Part.LineSegment(Vector(38, 36, 0), Vector(72, 36, 0)),  # 5
    Part.LineSegment(Vector(72, 36, 0), Vector(72, 66, 0)),  # 6
    Part.LineSegment(Vector(72, 66, 0), Vector(-72, 66, 0)),  # 7
], False)
sketch17.addConstraint([
    Sketcher.Constraint("Coincident", 0, 2, 1, 1),
    Sketcher.Constraint("Coincident", 1, 2, 2, 1),
    Sketcher.Constraint("Coincident", 2, 2, 3, 1),
    Sketcher.Constraint("Coincident", 3, 2, 4, 1),
    Sketcher.Constraint("Coincident", 4, 2, 5, 1),
    Sketcher.Constraint("Coincident", 5, 2, 6, 1),
    Sketcher.Constraint("Coincident", 6, 2, 7, 1),
    Sketcher.Constraint("Coincident", 7, 2, 0, 1),
    Sketcher.Constraint("Vertical", 0),
    Sketcher.Constraint("Horizontal", 1),
    Sketcher.Constraint("Vertical", 2),
    Sketcher.Constraint("Horizontal", 3),
    Sketcher.Constraint("Vertical", 4),
    Sketcher.Constraint("Horizontal", 5),
    Sketcher.Constraint("Vertical", 6),
    Sketcher.Constraint("Horizontal", 7),
    Sketcher.Constraint("Symmetric", 1, 2, 4, 2, -2),
    Sketcher.Constraint("Equal", 1, 5),
    Sketcher.Constraint("DistanceX", 1, 1, 1, 2, Q("35 mm")),
    Sketcher.Constraint("DistanceX", 3, 1, 3, 2, Q("75 mm")),
    Sketcher.Constraint("DistanceY", 0, 2, 0, 1, Q("30 mm")),
    Sketcher.Constraint("DistanceY", 2, 2, 2, 1, Q("70 mm")),
    Sketcher.Constraint("DistanceY", -1, 1, 0, 2, Q("36 mm")),
])
sketch17.setExpression("Constraints[18]", "Params.sketch17_width")
sketch17.setExpression("Constraints[19]", "Params.sketch17_width2")
sketch17.setExpression("Constraints[20]", "Params.sketch17_height")
sketch17.setExpression("Constraints[21]", "Params.sketch17_height2")
pad17 = body29.newObject("PartDesign::Pad", "Pad016")
pad17.Profile = sketch17
pad17.setExpression("Length", "Params.pad17_length")
body30 = doc.addObject("PartDesign::Body", "Body029")
doc.recompute()

body29.Placement = App.Placement(Vector(0, 0, 1), App.Rotation(Vector(0, 0, 1), 0))
boolean25 = body30.newObject("PartDesign::Boolean", "Boolean024")
boolean25.Type = "Fuse"
boolean25.addObjects([body29])
doc.recompute()

boolean26 = body30.newObject("PartDesign::Boolean", "Boolean025")
boolean26.Type = "Fuse"
boolean26.addObjects([body10])
doc.recompute()

boolean27 = body30.newObject("PartDesign::Boolean", "Boolean026")
boolean27.Type = "Fuse"
boolean27.addObjects([body19])
doc.recompute()

boolean28 = body30.newObject("PartDesign::Boolean", "Boolean027")
boolean28.Type = "Fuse"
boolean28.addObjects([body28])
doc.recompute()

boolean29 = body30.newObject("PartDesign::Boolean", "Boolean028")
boolean29.Type = "Cut"
boolean29.addObjects([body])

doc.recompute()
